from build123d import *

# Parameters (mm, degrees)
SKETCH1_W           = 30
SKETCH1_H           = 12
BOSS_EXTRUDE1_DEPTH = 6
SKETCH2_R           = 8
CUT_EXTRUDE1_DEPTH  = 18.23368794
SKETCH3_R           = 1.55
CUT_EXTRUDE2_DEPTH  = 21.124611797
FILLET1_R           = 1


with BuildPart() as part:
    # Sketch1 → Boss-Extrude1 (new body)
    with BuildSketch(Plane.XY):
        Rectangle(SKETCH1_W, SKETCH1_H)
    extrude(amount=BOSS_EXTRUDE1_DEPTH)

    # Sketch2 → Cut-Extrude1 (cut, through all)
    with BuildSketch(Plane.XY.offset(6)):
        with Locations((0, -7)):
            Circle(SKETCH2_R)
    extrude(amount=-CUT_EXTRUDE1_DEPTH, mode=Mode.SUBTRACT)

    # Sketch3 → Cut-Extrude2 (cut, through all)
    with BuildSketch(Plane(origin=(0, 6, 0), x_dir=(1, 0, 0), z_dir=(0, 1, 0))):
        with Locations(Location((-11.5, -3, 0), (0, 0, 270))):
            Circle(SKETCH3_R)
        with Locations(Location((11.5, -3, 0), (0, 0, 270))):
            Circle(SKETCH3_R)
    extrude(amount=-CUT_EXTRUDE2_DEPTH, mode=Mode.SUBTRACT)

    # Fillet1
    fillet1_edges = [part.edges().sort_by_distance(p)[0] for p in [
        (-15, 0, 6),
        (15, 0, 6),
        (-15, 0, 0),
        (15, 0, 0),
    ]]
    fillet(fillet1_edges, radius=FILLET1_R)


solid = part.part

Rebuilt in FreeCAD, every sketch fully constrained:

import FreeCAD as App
import Part
import Sketcher


def edges_at(feature, points):
    """Names of the edges that pass closest to the given points."""
    edges = feature.Shape.Edges
    near = lambda p: min(range(len(edges)), key=lambda i: edges[i].distToShape(Part.Vertex(*p))[0])
    return sorted({f"Edge{near(p) + 1}" for p in points})


def add_polygon(sketch, points):
    """Adds a closed chain of lines whose ends are joined by coincident constraints."""
    first, n = sketch.GeometryCount, len(points)
    for a, b in zip(points, points[1:] + points[:1]):
        sketch.addGeometry(Part.LineSegment(App.Vector(*a, 0), App.Vector(*b, 0)), False)
    for i in range(n):
        sketch.addConstraint(Sketcher.Constraint("Coincident", first + i, 2, first + (i + 1) % n, 1))

doc = App.newDocument("Part")
body = doc.addObject("PartDesign::Body", "Body")

# Sketch on XY plane
sketch1 = body.newObject("Sketcher::SketchObject", "Sketch")
sketch1.AttachmentSupport = (doc.getObject("XY_Plane"), [""])
sketch1.MapMode = "FlatFace"
add_polygon(sketch1, [(-15, 6), (-15, -6), (15, -6), (15, 6)])  # lines 0-3
sketch1.addConstraint([
    Sketcher.Constraint("Vertical", 0),
    Sketcher.Constraint("Horizontal", 1),
    Sketcher.Constraint("Vertical", 2),
    Sketcher.Constraint("Horizontal", 3),
    Sketcher.Constraint("Symmetric", 0, 2, 2, 2, -1, 1),
    Sketcher.Constraint("DistanceX", 1, 1, 1, 2, 30.0),
    Sketcher.Constraint("DistanceY", 0, 2, 0, 1, 12.0),
])
pad1 = body.newObject("PartDesign::Pad", "Pad")
pad1.Profile = sketch1
pad1.Length = 6

# Sketch on XY plane
sketch2 = body.newObject("Sketcher::SketchObject", "Sketch001")
sketch2.AttachmentSupport = (doc.getObject("XY_Plane"), [""])
sketch2.MapMode = "FlatFace"
sketch2.AttachmentOffset = App.Placement(App.Vector(0, 0, 6), App.Rotation())
sketch2.addGeometry(Part.Circle(App.Vector(0, -7, 0), App.Vector(0, 0, 1), 8), False)
sketch2.addConstraint([
    Sketcher.Constraint("PointOnObject", 0, 3, -2),
    Sketcher.Constraint("Diameter", 0, 16.0),
    Sketcher.Constraint("DistanceY", 0, 3, -1, 1, 7.0),
])
pocket1 = body.newObject("PartDesign::Pocket", "Pocket")
pocket1.Profile = sketch2
pocket1.Type = "ThroughAll"

# Sketch on XZ plane
sketch3 = body.newObject("Sketcher::SketchObject", "Sketch002")
sketch3.AttachmentSupport = (doc.getObject("XZ_Plane"), [""])
sketch3.MapMode = "FlatFace"
sketch3.AttachmentOffset = App.Placement(App.Vector(0, 0, -6), App.Rotation())
sketch3.addGeometry([
    Part.Circle(App.Vector(-11.5, 3, 0), App.Vector(0, 0, 1), 1.55),
    Part.Circle(App.Vector(11.5, 3, 0), App.Vector(0, 0, 1), 1.55),
], False)
sketch3.addConstraint([
    Sketcher.Constraint("Equal", 0, 1),
    Sketcher.Constraint("Symmetric", 0, 3, 1, 3, -2),
    Sketcher.Constraint("Diameter", 0, 3.1),
    Sketcher.Constraint("DistanceY", -1, 1, 0, 3, 3.0),
    Sketcher.Constraint("DistanceX", 0, 3, 1, 3, 23.0),
])
pocket2 = body.newObject("PartDesign::Pocket", "Pocket001")
pocket2.Profile = sketch3
pocket2.Type = "ThroughAll"
pocket2.Reversed = True
doc.recompute()

fillet = body.newObject("PartDesign::Fillet", "Fillet")
fillet.Base = (pocket2, edges_at(pocket2, [
    (-15, 0, 6),
    (15, 0, 6),
    (-15, 0, 0),
    (15, 0, 0),
]))
fillet.Radius = 1

doc.recompute()
